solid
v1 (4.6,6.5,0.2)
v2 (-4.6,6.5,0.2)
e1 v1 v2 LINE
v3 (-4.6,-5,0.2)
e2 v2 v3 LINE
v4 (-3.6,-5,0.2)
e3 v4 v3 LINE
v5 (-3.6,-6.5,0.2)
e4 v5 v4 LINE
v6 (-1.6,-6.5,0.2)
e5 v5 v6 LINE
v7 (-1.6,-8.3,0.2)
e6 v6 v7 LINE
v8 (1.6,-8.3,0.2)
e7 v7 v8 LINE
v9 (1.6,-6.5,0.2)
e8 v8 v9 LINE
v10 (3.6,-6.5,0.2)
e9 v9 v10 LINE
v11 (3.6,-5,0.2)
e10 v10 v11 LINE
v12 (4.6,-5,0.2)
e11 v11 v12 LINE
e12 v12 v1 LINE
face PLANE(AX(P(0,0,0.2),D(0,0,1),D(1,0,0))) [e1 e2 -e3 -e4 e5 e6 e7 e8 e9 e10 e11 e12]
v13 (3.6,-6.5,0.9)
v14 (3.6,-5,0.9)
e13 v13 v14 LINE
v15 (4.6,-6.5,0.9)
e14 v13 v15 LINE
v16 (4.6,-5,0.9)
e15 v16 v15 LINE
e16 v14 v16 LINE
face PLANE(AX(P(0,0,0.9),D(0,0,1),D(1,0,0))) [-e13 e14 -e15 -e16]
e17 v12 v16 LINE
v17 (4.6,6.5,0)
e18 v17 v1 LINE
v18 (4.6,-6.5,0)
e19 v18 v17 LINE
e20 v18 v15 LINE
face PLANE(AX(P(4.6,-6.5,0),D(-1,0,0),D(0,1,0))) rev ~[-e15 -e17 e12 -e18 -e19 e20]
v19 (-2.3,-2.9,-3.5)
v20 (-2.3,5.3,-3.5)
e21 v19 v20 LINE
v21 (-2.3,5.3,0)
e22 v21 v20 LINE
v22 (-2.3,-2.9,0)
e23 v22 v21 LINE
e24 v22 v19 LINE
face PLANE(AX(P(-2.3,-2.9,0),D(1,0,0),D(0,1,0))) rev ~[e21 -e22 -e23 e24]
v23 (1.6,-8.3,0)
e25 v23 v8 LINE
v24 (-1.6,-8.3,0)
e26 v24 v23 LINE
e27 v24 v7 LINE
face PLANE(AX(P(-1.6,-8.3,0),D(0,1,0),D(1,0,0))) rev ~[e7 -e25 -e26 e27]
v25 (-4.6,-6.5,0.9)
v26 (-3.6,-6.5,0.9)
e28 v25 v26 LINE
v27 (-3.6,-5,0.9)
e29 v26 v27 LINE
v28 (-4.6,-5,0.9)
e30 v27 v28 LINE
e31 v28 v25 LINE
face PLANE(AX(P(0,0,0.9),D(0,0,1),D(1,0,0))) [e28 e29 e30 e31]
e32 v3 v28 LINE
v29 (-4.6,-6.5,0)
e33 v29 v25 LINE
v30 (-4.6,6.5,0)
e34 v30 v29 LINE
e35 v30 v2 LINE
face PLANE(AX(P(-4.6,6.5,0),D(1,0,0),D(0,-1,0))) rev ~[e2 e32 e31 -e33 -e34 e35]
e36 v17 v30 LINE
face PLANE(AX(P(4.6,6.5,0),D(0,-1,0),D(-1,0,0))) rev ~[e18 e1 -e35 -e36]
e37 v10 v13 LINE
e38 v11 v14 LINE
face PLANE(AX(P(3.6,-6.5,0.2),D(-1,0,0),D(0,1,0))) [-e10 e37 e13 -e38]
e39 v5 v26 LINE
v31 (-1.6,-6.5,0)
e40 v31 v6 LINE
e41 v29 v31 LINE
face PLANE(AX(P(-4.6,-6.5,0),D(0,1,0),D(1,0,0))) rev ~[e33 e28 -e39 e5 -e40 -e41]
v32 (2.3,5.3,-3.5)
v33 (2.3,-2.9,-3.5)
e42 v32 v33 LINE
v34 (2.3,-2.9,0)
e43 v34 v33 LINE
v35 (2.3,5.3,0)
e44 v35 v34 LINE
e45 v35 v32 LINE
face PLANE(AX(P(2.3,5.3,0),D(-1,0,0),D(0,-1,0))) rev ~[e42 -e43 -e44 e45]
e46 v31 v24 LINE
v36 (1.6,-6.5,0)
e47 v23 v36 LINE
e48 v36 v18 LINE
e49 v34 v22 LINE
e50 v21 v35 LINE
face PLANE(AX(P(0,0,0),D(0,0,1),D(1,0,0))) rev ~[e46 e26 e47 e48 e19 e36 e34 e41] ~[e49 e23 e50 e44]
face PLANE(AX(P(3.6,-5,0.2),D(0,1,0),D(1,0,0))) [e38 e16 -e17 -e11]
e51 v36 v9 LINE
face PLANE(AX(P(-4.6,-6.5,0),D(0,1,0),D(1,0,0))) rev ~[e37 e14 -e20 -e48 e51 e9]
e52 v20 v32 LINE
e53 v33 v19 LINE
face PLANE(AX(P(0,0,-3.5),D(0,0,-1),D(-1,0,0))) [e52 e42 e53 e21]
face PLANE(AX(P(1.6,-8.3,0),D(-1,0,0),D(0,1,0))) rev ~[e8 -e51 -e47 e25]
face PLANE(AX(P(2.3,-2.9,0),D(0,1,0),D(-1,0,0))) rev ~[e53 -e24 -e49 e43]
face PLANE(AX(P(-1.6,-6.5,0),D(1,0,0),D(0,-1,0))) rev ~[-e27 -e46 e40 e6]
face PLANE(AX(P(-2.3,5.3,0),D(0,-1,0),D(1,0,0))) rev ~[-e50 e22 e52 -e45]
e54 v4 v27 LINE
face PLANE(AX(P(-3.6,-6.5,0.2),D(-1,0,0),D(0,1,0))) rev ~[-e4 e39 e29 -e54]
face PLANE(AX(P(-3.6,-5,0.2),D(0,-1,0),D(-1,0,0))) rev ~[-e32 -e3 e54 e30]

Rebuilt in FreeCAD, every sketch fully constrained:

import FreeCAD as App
import Part
import Sketcher

V = App.Vector
Q = App.Units.Quantity

doc = App.newDocument("Part")
params = doc.addObject("Spreadsheet::Sheet", "Params")
for row, (alias, value) in enumerate([
    ("sketch1_height", "13 mm"),
    ("sketch1_width", "9.2 mm"),
    ("pad1_length", "0.2 mm"),
    ("sketch2_width", "1 mm"),
    ("sketch2_height", "1.5 mm"),
    ("pad2_length", "0.7 mm"),
    ("sketch3_width", "4.6 mm"),
    ("sketch3_height", "8.2 mm"),
    ("pad3_length", "3.5 mm"),
    ("sketch4_width", "3.2 mm"),
    ("sketch4_height", "1.8 mm"),
    ("pad4_length", "0.2 mm"),
], start=1):
    params.set(f"A{row}", alias)
    params.set(f"B{row}", "=" + value)
    params.setAlias(f"B{row}", alias)

body = doc.addObject("PartDesign::Body", "Body")

sketch1 = doc.addObject("Sketcher::SketchObject", "Sketch")
body.addObject(sketch1)
sketch1.AttachmentSupport = (doc.XY_Plane, [""])
sketch1.MapMode = "FlatFace"
sketch1.addGeometry(Part.LineSegment(V(-5, 6, 0), V(-5, -6, 0)), False)
sketch1.addGeometry(Part.LineSegment(V(-5, -6, 0), V(5, -6, 0)), False)
sketch1.addGeometry(Part.LineSegment(V(5, -6, 0), V(5, 6, 0)), False)
sketch1.addGeometry(Part.LineSegment(V(5, 6, 0), V(-5, 6, 0)), False)
sketch1.addConstraint(Sketcher.Constraint("Coincident", 0, 2, 1, 1))
sketch1.addConstraint(Sketcher.Constraint("Coincident", 1, 2, 2, 1))
sketch1.addConstraint(Sketcher.Constraint("Coincident", 2, 2, 3, 1))
sketch1.addConstraint(Sketcher.Constraint("Coincident", 3, 2, 0, 1))
sketch1.addConstraint(Sketcher.Constraint("Vertical", 0))
sketch1.addConstraint(Sketcher.Constraint("Horizontal", 1))
sketch1.addConstraint(Sketcher.Constraint("Vertical", 2))
sketch1.addConstraint(Sketcher.Constraint("Horizontal", 3))
sketch1.addConstraint(Sketcher.Constraint("Symmetric", 0, 2, 2, 2, -1, 1))
sketch1.addConstraint(Sketcher.Constraint("DistanceY", 0, 2, 0, 1, Q("13 mm")))
sketch1.addConstraint(Sketcher.Constraint("DistanceX", 1, 1, 1, 2, Q("9.2 mm")))
sketch1.setExpression("Constraints[9]", "Params.sketch1_height")
sketch1.setExpression("Constraints[10]", "Params.sketch1_width")
pad1 = doc.addObject("PartDesign::Pad", "Pad")
body.addObject(pad1)
pad1.Profile = sketch1
pad1.setExpression("Length", "Params.pad1_length")

sketch2 = doc.addObject("Sketcher::SketchObject", "Sketch001")
body.addObject(sketch2)
sketch2.AttachmentSupport = (doc.XY_Plane, [""])
sketch2.MapMode = "FlatFace"
sketch2.AttachmentOffset = App.Placement(V(0, 0, 0.2), App.Rotation())
sketch2.addGeometry(Part.LineSegment(V(-4.6, -5, 0), V(-4.6, -6.5, 0)), False)
sketch2.addGeometry(Part.LineSegment(V(-4.6, -6.5, 0), V(-3.6, -6.5, 0)), False)
sketch2.addGeometry(Part.LineSegment(V(-3.6, -6.5, 0), V(-3.6, -5, 0)), False)
sketch2.addGeometry(Part.LineSegment(V(-3.6, -5, 0), V(-4.6, -5, 0)), False)
sketch2.addGeometry(Part.LineSegment(V(3.6, -5, 0), V(3.6, -6.5, 0)), False)
sketch2.addGeometry(Part.LineSegment(V(3.6, -6.5, 0), V(4.6, -6.5, 0)), False)
sketch2.addGeometry(Part.LineSegment(V(4.6, -6.5, 0), V(4.6, -5, 0)), False)
sketch2.addGeometry(Part.LineSegment(V(4.6, -5, 0), V(3.6, -5, 0)), False)
sketch2.addConstraint(Sketcher.Constraint("Coincident", 0, 2, 1, 1))
sketch2.addConstraint(Sketcher.Constraint("Coincident", 1, 2, 2, 1))
sketch2.addConstraint(Sketcher.Constraint("Coincident", 2, 2, 3, 1))
sketch2.addConstraint(Sketcher.Constraint("Coincident", 3, 2, 0, 1))
sketch2.addConstraint(Sketcher.Constraint("Coincident", 4, 2, 5, 1))
sketch2.addConstraint(Sketcher.Constraint("Coincident", 5, 2, 6, 1))
sketch2.addConstraint(Sketcher.Constraint("Coincident", 6, 2, 7, 1))
sketch2.addConstraint(Sketcher.Constraint("Coincident", 7, 2, 4, 1))
sketch2.addConstraint(Sketcher.Constraint("Vertical", 0))
sketch2.addConstraint(Sketcher.Constraint("Horizontal", 1))
sketch2.addConstraint(Sketcher.Constraint("Vertical", 2))
sketch2.addConstraint(Sketcher.Constraint("Horizontal", 3))
sketch2.addConstraint(Sketcher.Constraint("Vertical", 4))
sketch2.addConstraint(Sketcher.Constraint("Horizontal", 5))
sketch2.addConstraint(Sketcher.Constraint("Vertical", 6))
sketch2.addConstraint(Sketcher.Constraint("Horizontal", 7))
sketch2.addConstraint(Sketcher.Constraint("Symmetric", 1, 2, 4, 2, -2))
sketch2.addConstraint(Sketcher.Constraint("Symmetric", 3, 2, 6, 2, -2))
sketch2.addConstraint(Sketcher.Constraint("DistanceX", 1, 1, 1, 2, Q("1 mm")))
sketch2.addConstraint(Sketcher.Constraint("DistanceY", 0, 2, 0, 1, Q("1.5 mm")))
sketch2.addConstraint(Sketcher.Constraint("DistanceY", 2, 2, -1, 1, Q("5 mm")))
sketch2.addConstraint(Sketcher.Constraint("DistanceX", 0, 2, -1, 1, Q("4.6 mm")))
sketch2.setExpression("Constraints[18]", "Params.sketch2_width")
sketch2.setExpression("Constraints[19]", "Params.sketch2_height")
pad2 = doc.addObject("PartDesign::Pad", "Pad001")
body.addObject(pad2)
pad2.Profile = sketch2
pad2.setExpression("Length", "Params.pad2_length")

sketch3 = doc.addObject("Sketcher::SketchObject", "Sketch002")
body.addObject(sketch3)
sketch3.AttachmentSupport = (doc.XY_Plane, [""])
sketch3.MapMode = "FlatFace"
sketch3.addGeometry(Part.LineSegment(V(2.3, 5.3, 0), V(2.3, -2.9, 0)), False)
sketch3.addGeometry(Part.LineSegment(V(2.3, -2.9, 0), V(-2.3, -2.9, 0)), False)
sketch3.addGeometry(Part.LineSegment(V(-2.3, -2.9, 0), V(-2.3, 5.3, 0)), False)
sketch3.addGeometry(Part.LineSegment(V(-2.3, 5.3, 0), V(2.3, 5.3, 0)), False)
sketch3.addConstraint(Sketcher.Constraint("Coincident", 0, 2, 1, 1))
sketch3.addConstraint(Sketcher.Constraint("Coincident", 1, 2, 2, 1))
sketch3.addConstraint(Sketcher.Constraint("Coincident", 2, 2, 3, 1))
sketch3.addConstraint(Sketcher.Constraint("Coincident", 3, 2, 0, 1))
sketch3.addConstraint(Sketcher.Constraint("Vertical", 0))
sketch3.addConstraint(Sketcher.Constraint("Horizontal", 1))
sketch3.addConstraint(Sketcher.Constraint("Vertical", 2))
sketch3.addConstraint(Sketcher.Constraint("Horizontal", 3))
sketch3.addConstraint(Sketcher.Constraint("DistanceX", 1, 2, 1, 1, Q("4.6 mm")))
sketch3.addConstraint(Sketcher.Constraint("DistanceY", 0, 2, 0, 1, Q("8.2 mm")))
sketch3.addConstraint(Sketcher.Constraint("DistanceX", -1, 1, 0, 2, Q("2.3 mm")))
sketch3.addConstraint(Sketcher.Constraint("DistanceY", 0, 2, -1, 1, Q("2.9 mm")))
sketch3.setExpression("Constraints[8]", "Params.sketch3_width")
sketch3.setExpression("Constraints[9]", "Params.sketch3_height")
pad3 = doc.addObject("PartDesign::Pad", "Pad002")
body.addObject(pad3)
pad3.Profile = sketch3
pad3.setExpression("Length", "Params.pad3_length")
pad3.Reversed = True

sketch4 = doc.addObject("Sketcher::SketchObject", "Sketch003")
body.addObject(sketch4)
sketch4.AttachmentSupport = (doc.XY_Plane, [""])
sketch4.MapMode = "FlatFace"
sketch4.addGeometry(Part.LineSegment(V(-1.6, -6.5, 0), V(1.6, -6.5, 0)), False)
sketch4.addGeometry(Part.LineSegment(V(1.6, -6.5, 0), V(1.6, -8.3, 0)), False)
sketch4.addGeometry(Part.LineSegment(V(1.6, -8.3, 0), V(-1.6, -8.3, 0)), False)
sketch4.addGeometry(Part.LineSegment(V(-1.6, -8.3, 0), V(-1.6, -6.5, 0)), False)
sketch4.addConstraint(Sketcher.Constraint("Coincident", 0, 2, 1, 1))
sketch4.addConstraint(Sketcher.Constraint("Coincident", 1, 2, 2, 1))
sketch4.addConstraint(Sketcher.Constraint("Coincident", 2, 2, 3, 1))
sketch4.addConstraint(Sketcher.Constraint("Coincident", 3, 2, 0, 1))
sketch4.addConstraint(Sketcher.Constraint("Horizontal", 0))
sketch4.addConstraint(Sketcher.Constraint("Vertical", 1))
sketch4.addConstraint(Sketcher.Constraint("Horizontal", 2))
sketch4.addConstraint(Sketcher.Constraint("Vertical", 3))
sketch4.addConstraint(Sketcher.Constraint("DistanceX", 0, 1, 0, 2, Q("3.2 mm")))
sketch4.addConstraint(Sketcher.Constraint("DistanceY", 1, 2, 1, 1, Q("1.8 mm")))
sketch4.addConstraint(Sketcher.Constraint("DistanceX", -1, 1, 0, 2, Q("1.6 mm")))
sketch4.addConstraint(Sketcher.Constraint("DistanceY", 0, 2, -1, 1, Q("6.5 mm")))
sketch4.setExpression("Constraints[8]", "Params.sketch4_width")
sketch4.setExpression("Constraints[9]", "Params.sketch4_height")
pad4 = doc.addObject("PartDesign::Pad", "Pad003")
body.addObject(pad4)
pad4.Profile = sketch4
pad4.setExpression("Length", "Params.pad4_length")

doc.recompute()
